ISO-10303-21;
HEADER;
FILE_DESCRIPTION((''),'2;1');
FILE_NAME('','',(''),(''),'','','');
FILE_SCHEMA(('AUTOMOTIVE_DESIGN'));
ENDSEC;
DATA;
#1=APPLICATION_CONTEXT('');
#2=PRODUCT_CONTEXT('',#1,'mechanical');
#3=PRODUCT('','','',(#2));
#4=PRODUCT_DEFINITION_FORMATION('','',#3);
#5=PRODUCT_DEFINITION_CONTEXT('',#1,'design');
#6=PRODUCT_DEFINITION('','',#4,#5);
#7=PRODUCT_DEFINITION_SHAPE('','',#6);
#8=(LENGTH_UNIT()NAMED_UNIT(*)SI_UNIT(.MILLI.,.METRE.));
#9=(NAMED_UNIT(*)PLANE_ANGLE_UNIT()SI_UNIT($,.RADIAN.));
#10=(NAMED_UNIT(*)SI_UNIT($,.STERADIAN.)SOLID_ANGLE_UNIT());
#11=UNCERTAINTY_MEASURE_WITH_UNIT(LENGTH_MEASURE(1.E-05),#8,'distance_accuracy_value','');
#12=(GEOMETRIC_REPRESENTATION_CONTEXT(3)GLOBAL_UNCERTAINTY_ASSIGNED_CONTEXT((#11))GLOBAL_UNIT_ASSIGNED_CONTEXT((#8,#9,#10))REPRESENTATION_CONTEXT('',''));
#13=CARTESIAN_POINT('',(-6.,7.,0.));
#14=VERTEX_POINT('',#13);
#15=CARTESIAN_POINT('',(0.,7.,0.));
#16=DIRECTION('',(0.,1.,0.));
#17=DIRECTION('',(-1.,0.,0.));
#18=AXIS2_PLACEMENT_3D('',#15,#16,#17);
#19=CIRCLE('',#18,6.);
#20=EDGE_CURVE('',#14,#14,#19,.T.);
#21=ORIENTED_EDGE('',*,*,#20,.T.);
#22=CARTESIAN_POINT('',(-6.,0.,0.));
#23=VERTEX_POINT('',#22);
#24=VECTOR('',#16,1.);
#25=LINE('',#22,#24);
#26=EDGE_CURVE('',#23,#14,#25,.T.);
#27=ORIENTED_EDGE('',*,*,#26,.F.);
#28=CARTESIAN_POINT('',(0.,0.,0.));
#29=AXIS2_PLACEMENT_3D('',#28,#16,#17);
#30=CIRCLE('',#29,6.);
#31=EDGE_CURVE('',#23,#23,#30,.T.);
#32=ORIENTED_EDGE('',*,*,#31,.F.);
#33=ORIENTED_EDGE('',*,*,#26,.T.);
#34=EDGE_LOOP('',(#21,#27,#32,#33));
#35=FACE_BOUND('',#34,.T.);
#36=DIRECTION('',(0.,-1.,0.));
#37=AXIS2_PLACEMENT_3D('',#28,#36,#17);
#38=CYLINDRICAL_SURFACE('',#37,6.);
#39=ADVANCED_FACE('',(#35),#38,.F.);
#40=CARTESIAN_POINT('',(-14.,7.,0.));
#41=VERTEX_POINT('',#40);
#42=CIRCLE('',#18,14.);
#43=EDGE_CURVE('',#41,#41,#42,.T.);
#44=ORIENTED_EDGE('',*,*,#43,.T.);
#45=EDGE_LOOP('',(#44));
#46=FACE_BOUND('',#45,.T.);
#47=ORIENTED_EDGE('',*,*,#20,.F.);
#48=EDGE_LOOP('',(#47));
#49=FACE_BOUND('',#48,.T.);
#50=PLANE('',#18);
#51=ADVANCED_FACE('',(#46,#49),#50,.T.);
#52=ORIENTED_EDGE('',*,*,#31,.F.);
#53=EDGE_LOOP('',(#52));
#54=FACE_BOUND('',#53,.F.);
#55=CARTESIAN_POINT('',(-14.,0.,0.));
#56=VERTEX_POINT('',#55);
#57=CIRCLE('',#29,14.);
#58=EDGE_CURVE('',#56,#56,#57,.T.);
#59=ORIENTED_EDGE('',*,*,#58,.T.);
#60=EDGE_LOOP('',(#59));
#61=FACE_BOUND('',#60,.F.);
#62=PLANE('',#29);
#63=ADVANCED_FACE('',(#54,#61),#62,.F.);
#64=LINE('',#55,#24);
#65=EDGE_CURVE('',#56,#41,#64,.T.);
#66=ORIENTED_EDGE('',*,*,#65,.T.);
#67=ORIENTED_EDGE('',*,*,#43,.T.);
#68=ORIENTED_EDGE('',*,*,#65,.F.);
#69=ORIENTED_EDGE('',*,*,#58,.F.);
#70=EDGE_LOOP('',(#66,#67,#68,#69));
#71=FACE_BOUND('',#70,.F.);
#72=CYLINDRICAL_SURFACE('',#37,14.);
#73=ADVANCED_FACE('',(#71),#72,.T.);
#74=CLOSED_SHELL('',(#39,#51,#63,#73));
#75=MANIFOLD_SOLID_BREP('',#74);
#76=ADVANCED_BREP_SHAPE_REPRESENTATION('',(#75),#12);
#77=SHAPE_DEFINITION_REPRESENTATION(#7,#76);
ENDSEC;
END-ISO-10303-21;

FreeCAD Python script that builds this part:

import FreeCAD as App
import Part
import Sketcher
Q = App.Units.Quantity

doc = App.newDocument("Part")
body = doc.addObject("PartDesign::Body", "Body")

# Sketch on XZ plane
sketch1 = body.newObject("Sketcher::SketchObject", "Sketch")
sketch1.AttachmentSupport = (doc.getObject("XZ_Plane"), [""])
sketch1.MapMode = "FlatFace"
sketch1.addGeometry(Part.Circle(App.Vector(0, 0, 0), App.Vector(0, 0, 1), 14), False)
sketch1.addGeometry(Part.Circle(App.Vector(0, 0, 0), App.Vector(0, 0, 1), 6), False)
sketch1.addConstraint(Sketcher.Constraint("Coincident", 0, 3, -1, 1))
sketch1.addConstraint(Sketcher.Constraint("Coincident", 1, 3, -1, 1))
sketch1.addConstraint(Sketcher.Constraint("Diameter", 0, Q("28 mm")))
sketch1.addConstraint(Sketcher.Constraint("Diameter", 1, Q("12 mm")))
pad1 = body.newObject("PartDesign::Pad", "Pad")
pad1.Profile = sketch1
pad1.Length = 7
pad1.Reversed = True

doc.recompute()
